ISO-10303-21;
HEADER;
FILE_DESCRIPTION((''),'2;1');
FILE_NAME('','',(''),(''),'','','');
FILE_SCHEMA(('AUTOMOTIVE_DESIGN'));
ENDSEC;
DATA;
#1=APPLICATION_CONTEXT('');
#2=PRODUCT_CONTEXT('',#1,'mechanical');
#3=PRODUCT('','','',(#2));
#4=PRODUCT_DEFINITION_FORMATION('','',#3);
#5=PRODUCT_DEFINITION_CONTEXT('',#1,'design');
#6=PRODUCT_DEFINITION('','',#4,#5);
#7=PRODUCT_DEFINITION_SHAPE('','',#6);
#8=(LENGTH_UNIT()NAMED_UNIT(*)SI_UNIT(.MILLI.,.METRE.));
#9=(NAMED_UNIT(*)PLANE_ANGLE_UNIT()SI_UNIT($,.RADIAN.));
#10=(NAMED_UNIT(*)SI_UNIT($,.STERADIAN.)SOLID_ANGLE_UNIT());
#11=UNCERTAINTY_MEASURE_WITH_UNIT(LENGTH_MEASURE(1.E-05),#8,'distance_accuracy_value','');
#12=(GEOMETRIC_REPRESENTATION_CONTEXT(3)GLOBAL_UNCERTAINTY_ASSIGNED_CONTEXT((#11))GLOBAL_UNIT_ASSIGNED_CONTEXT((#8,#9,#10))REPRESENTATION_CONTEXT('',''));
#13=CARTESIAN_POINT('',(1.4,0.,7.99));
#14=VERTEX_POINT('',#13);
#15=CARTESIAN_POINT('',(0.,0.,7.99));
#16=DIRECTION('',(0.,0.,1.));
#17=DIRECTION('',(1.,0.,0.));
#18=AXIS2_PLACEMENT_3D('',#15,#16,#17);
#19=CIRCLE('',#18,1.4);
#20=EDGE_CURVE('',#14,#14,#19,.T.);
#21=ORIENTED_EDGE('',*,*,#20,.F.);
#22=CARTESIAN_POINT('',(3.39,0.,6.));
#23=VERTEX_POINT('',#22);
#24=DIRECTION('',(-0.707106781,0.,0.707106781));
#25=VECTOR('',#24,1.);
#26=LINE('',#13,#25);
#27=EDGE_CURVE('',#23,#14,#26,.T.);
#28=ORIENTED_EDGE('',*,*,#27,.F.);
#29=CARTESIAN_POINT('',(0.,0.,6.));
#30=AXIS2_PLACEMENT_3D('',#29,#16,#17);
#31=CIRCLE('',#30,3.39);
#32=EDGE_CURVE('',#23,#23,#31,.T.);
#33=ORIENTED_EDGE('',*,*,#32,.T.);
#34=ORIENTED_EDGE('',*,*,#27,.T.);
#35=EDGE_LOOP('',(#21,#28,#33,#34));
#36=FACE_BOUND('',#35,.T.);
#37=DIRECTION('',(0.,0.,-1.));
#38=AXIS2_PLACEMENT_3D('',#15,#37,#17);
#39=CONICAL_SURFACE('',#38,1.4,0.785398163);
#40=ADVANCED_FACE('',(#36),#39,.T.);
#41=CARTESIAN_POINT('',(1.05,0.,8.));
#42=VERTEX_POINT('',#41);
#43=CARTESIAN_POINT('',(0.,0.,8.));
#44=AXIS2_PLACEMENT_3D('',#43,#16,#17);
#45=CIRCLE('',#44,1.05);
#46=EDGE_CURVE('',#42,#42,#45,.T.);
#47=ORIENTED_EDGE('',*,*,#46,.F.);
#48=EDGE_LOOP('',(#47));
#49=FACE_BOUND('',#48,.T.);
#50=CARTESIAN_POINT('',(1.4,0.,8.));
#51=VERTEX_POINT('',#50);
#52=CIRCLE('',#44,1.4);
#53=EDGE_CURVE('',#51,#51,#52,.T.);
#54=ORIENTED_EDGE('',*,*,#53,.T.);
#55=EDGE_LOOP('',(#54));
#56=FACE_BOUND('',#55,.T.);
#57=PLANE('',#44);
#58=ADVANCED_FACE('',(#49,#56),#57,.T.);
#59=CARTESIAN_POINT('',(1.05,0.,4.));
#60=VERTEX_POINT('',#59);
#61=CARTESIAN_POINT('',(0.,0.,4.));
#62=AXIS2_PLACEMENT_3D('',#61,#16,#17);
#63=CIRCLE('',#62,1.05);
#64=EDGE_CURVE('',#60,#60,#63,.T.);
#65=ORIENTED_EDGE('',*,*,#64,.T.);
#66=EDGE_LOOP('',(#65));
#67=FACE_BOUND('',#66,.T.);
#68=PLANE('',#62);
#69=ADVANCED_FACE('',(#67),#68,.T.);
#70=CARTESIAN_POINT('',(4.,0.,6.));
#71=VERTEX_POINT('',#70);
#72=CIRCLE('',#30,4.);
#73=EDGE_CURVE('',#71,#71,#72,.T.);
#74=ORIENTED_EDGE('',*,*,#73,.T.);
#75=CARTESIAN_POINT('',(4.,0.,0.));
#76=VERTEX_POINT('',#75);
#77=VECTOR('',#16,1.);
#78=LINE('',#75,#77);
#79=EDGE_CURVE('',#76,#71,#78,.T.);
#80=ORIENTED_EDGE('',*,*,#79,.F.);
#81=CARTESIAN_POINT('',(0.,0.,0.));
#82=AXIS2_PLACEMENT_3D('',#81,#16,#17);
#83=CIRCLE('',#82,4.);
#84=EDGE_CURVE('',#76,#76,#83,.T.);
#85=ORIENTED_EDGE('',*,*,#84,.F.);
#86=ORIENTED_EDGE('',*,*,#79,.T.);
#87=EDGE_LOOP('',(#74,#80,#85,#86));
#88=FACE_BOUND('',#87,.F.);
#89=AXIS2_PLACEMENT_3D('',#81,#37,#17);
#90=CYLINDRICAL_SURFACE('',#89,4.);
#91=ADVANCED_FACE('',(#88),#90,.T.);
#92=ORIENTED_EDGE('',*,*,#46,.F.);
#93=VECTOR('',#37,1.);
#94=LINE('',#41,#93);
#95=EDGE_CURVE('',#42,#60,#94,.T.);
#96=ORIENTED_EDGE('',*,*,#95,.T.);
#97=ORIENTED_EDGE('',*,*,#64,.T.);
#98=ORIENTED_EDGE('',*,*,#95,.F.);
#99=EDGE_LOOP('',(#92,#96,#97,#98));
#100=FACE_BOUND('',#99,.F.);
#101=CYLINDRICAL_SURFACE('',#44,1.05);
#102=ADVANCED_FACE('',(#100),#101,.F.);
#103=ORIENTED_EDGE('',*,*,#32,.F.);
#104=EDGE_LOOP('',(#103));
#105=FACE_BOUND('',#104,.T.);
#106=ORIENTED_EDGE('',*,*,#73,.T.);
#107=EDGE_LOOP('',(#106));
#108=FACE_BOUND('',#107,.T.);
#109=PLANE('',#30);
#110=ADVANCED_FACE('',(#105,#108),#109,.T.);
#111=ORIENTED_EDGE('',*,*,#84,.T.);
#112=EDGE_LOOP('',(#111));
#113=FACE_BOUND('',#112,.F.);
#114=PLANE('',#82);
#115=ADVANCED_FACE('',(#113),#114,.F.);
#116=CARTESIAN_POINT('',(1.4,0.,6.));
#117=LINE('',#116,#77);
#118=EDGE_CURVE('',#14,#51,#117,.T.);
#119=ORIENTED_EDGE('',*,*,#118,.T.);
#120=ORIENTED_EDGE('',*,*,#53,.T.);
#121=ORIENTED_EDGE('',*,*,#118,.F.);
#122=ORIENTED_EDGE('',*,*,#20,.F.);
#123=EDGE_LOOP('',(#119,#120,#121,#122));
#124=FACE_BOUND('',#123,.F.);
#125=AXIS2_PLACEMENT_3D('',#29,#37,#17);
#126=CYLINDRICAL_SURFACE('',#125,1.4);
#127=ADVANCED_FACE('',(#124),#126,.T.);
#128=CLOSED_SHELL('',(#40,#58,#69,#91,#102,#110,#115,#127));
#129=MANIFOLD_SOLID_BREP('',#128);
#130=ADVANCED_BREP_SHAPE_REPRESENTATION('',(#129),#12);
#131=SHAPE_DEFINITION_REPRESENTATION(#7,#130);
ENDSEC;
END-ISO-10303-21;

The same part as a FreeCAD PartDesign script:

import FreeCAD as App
import Part
import Sketcher

V = App.Vector
Q = App.Units.Quantity


def edges_at(feature, points):
    """Names of the edges that pass closest to the given points."""
    edges = feature.Shape.Edges
    near = lambda p: min(range(len(edges)), key=lambda i: edges[i].distToShape(Part.Vertex(*p))[0])
    return sorted({f"Edge{near(p) + 1}" for p in points})

doc = App.newDocument("Part")
body = doc.addObject("PartDesign::Body", "Body")

sketch1 = body.newObject("Sketcher::SketchObject", "Sketch")
sketch1.AttachmentSupport = (doc.getObject("XY_Plane"), [""])
sketch1.MapMode = "FlatFace"
sketch1.addGeometry(Part.Circle(V(0, 0, 0), V(0, 0, 1), 4), False)
sketch1.addConstraint(Sketcher.Constraint("Coincident", 0, 3, -1, 1))
sketch1.addConstraint(Sketcher.Constraint("Diameter", 0, Q("8 mm")))
pad1 = body.newObject("PartDesign::Pad", "Pad")
pad1.Profile = sketch1
pad1.Length = 6

sketch2 = body.newObject("Sketcher::SketchObject", "Sketch001")
sketch2.AttachmentSupport = (doc.getObject("XY_Plane"), [""])
sketch2.MapMode = "FlatFace"
sketch2.AttachmentOffset = App.Placement(V(0, 0, 6), App.Rotation())
sketch2.addGeometry(Part.Circle(V(0, 0, 0), V(0, 0, 1), 1.4), False)
sketch2.addConstraint(Sketcher.Constraint("Coincident", 0, 3, -1, 1))
sketch2.addConstraint(Sketcher.Constraint("Diameter", 0, Q("2.8 mm")))
pad2 = body.newObject("PartDesign::Pad", "Pad001")
pad2.Profile = sketch2
pad2.Length = 2
doc.recompute()

chamfer = body.newObject("PartDesign::Chamfer", "Chamfer")
chamfer.Base = (pad2, edges_at(pad2, [(-1.4, 0, 6)]))
chamfer.Size = 1.99

sketch3 = body.newObject("Sketcher::SketchObject", "Sketch002")
sketch3.AttachmentSupport = (doc.getObject("XY_Plane"), [""])
sketch3.MapMode = "FlatFace"
sketch3.AttachmentOffset = App.Placement(V(0, 0, 8), App.Rotation())
sketch3.addGeometry(Part.Circle(V(0, 0, 0), V(0, 0, 1), 1.05), False)
sketch3.addConstraint(Sketcher.Constraint("Coincident", 0, 3, -1, 1))
sketch3.addConstraint(Sketcher.Constraint("Diameter", 0, Q("2.1 mm")))
pocket1 = body.newObject("PartDesign::Pocket", "Pocket")
pocket1.Profile = sketch3
pocket1.Length = 4

doc.recompute()
